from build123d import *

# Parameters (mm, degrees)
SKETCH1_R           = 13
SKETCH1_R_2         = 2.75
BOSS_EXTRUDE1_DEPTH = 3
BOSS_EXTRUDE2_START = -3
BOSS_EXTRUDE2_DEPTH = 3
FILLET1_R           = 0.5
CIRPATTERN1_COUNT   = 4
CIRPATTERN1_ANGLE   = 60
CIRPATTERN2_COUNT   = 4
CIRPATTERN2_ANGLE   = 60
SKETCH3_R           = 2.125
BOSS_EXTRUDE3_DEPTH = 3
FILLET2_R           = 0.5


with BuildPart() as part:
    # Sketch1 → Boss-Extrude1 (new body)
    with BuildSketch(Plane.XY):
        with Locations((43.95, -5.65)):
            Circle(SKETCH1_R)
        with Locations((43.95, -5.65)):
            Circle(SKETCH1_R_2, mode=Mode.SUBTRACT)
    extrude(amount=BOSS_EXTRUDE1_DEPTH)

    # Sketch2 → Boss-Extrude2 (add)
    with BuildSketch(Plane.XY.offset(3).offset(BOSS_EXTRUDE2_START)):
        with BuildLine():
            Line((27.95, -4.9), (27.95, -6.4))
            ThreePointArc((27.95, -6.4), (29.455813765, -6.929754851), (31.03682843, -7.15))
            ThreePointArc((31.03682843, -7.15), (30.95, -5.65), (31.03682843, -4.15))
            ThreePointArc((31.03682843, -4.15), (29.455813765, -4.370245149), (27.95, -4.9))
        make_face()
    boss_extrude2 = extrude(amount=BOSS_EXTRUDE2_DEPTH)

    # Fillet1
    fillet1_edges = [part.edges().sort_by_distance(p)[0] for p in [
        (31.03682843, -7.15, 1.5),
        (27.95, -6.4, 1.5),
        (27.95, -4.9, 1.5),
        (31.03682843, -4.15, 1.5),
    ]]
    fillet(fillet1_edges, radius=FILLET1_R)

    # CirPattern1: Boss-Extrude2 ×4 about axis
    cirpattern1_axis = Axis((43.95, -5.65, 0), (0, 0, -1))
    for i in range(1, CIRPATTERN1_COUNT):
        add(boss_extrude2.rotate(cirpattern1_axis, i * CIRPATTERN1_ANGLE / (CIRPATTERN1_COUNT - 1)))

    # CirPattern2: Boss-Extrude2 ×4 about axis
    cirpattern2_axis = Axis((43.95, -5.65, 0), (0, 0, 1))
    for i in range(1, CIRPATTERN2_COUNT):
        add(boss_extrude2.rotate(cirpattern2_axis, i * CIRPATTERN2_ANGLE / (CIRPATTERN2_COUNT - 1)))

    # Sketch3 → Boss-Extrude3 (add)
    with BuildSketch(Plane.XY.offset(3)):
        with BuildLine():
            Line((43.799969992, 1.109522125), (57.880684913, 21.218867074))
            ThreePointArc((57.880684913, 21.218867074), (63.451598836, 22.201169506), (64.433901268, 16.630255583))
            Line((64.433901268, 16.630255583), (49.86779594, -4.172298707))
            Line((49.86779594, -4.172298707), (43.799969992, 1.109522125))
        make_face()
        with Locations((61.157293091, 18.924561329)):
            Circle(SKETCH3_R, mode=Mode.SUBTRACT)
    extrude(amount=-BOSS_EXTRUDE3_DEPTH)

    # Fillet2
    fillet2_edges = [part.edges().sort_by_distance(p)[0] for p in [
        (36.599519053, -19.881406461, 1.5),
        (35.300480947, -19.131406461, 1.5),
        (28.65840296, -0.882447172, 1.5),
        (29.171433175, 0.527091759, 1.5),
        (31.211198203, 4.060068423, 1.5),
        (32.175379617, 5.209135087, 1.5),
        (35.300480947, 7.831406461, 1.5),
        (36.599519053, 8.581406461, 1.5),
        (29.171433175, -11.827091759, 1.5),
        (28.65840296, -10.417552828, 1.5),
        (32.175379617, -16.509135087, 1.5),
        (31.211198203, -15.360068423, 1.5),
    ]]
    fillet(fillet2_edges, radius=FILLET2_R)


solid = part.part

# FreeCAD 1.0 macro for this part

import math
import FreeCAD as App
import Part
import Sketcher
from FreeCAD import Vector
Q = App.Units.Quantity


def edges_at(feature, points):
    """Names of the edges that pass closest to the given points."""
    edges = feature.Shape.Edges
    near = lambda p: min(range(len(edges)), key=lambda i: edges[i].distToShape(Part.Vertex(*p))[0])
    return sorted({f"Edge{near(p) + 1}" for p in points})

doc = App.newDocument("Part")
body = doc.addObject("PartDesign::Body", "Body")

# Sketch on XY plane
sketch1 = body.newObject("Sketcher::SketchObject", "Sketch")
sketch1.AttachmentSupport = (doc.getObject("XY_Plane"), [""])
sketch1.MapMode = "FlatFace"
sketch1.addGeometry(Part.Circle(Vector(44, -5.7, 0), Vector(0, 0, 1), 13), False)
sketch1.addGeometry(Part.Circle(Vector(44, -5.7, 0), Vector(0, 0, 1), 2.8), False)
sketch1.addConstraint(Sketcher.Constraint("Coincident", 1, 3, 0, 3))
sketch1.addConstraint(Sketcher.Constraint("Diameter", 0, Q("26 mm")))
sketch1.addConstraint(Sketcher.Constraint("Diameter", 1, Q("5.5 mm")))
sketch1.addConstraint(Sketcher.Constraint("DistanceX", -1, 1, 0, 3, Q("43.95 mm")))
sketch1.addConstraint(Sketcher.Constraint("DistanceY", 0, 3, -1, 1, Q("5.65 mm")))
pad1 = body.newObject("PartDesign::Pad", "Pad")
pad1.Profile = sketch1
pad1.Length = 3

# Sketch on XY plane
sketch2 = body.newObject("Sketcher::SketchObject", "Sketch001")
sketch2.AttachmentSupport = (doc.getObject("XY_Plane"), [""])
sketch2.MapMode = "FlatFace"
sketch2.addGeometry(Part.LineSegment(Vector(27.9, -4.9, 0), Vector(27.9, -6.4, 0)), False)
sketch2.addGeometry(Part.ArcOfCircle(Part.Circle(Vector(31.3, 0.8, 0), Vector(0, 0, 1), 8), math.radians(-115), math.radians(-92)), False)
sketch2.addGeometry(Part.ArcOfCircle(Part.Circle(Vector(43.9, -5.7, 0), Vector(0, 0, 1), 13), math.radians(173.37), math.radians(186.63)), False)
sketch2.addGeometry(Part.ArcOfCircle(Part.Circle(Vector(31.3, -12.1, 0), Vector(0, 0, 1), 8), math.radians(92), math.radians(115)), False)
sketch2.addConstraint(Sketcher.Constraint("Coincident", 0, 2, 1, 1))
sketch2.addConstraint(Sketcher.Constraint("Coincident", 1, 2, 2, 2))
sketch2.addConstraint(Sketcher.Constraint("Coincident", 2, 1, 3, 1))
sketch2.addConstraint(Sketcher.Constraint("Coincident", 3, 2, 0, 1))
sketch2.addConstraint(Sketcher.Constraint("Vertical", 0))
sketch2.addConstraint(Sketcher.Constraint("Equal", 1, 3))
sketch2.addConstraint(Sketcher.Constraint("Vertical", 1, 3, 3, 3))
sketch2.addConstraint(Sketcher.Constraint("Vertical", 1, 2, 2, 1))
sketch2.addConstraint(Sketcher.Constraint("Radius", 1, Q("8 mm")))
sketch2.addConstraint(Sketcher.Constraint("Radius", 2, Q("13 mm")))
sketch2.addConstraint(Sketcher.Constraint("DistanceY", 0, 2, 0, 1, Q("1.5 mm")))
sketch2.addConstraint(Sketcher.Constraint("DistanceX", 0, 2, 2, 3, Q("16 mm")))
sketch2.addConstraint(Sketcher.Constraint("DistanceY", 1, 2, 2, 1, Q("3 mm")))
sketch2.addConstraint(Sketcher.Constraint("DistanceY", 0, 2, -1, 1, Q("6.4 mm")))
sketch2.addConstraint(Sketcher.Constraint("DistanceX", -1, 1, 2, 3, Q("43.95 mm")))
pad2 = body.newObject("PartDesign::Pad", "Pad001")
pad2.Profile = sketch2
pad2.Length = 3
doc.recompute()

fillet = body.newObject("PartDesign::Fillet", "Fillet")
fillet.Base = (pad2, edges_at(pad2, [
    (31.037, -7.15, 1.5),
    (27.95, -6.4, 1.5),
    (27.95, -4.9, 1.5),
    (31.037, -4.15, 1.5),
]))
fillet.Radius = 0.5
doc.recompute()

datumline = body.newObject("PartDesign::Line", "DatumLine")
datumline.Placement = App.Placement(Vector(43.95, -5.65, 0), App.Rotation(Vector(0, 0, 1), Vector(0, 0, -1)))
polarpattern = body.newObject("PartDesign::PolarPattern", "PolarPattern")
polarpattern.Originals = [pad2]
polarpattern.Axis = (datumline, [""])
polarpattern.Angle = 60
polarpattern.Occurrences = 4
body.Tip = polarpattern
doc.recompute()

datumline2 = body.newObject("PartDesign::Line", "DatumLine001")
datumline2.Placement = App.Placement(Vector(43.95, -5.65, 0), App.Rotation(Vector(0, 0, 1), Vector(0, 0, 1)))
polarpattern2 = body.newObject("PartDesign::PolarPattern", "PolarPattern001")
polarpattern2.Originals = [pad2]
polarpattern2.Axis = (datumline2, [""])
polarpattern2.Angle = 60
polarpattern2.Occurrences = 4
body.Tip = polarpattern2

# Sketch on XY plane
sketch3 = body.newObject("Sketcher::SketchObject", "Sketch002")
sketch3.AttachmentSupport = (doc.getObject("XY_Plane"), [""])
sketch3.MapMode = "FlatFace"
sketch3.AttachmentOffset = App.Placement(Vector(0, 0, 3), App.Rotation())
sketch3.addGeometry(Part.LineSegment(Vector(57.9, 21.2, 0), Vector(43.8, 1.1, 0)), False)
sketch3.addGeometry(Part.LineSegment(Vector(43.8, 1.1, 0), Vector(49.9, -4.2, 0)), False)
sketch3.addGeometry(Part.LineSegment(Vector(49.9, -4.2, 0), Vector(64.4, 16.6, 0)), False)
sketch3.addGeometry(Part.ArcOfCircle(Part.Circle(Vector(61.2, 18.9, 0), Vector(0, 0, 1), 4), math.radians(-35), math.radians(145)), False)
sketch3.addGeometry(Part.Circle(Vector(61.2, 18.9, 0), Vector(0, 0, 1), 2.1), False)
sketch3.addConstraint(Sketcher.Constraint("Coincident", 0, 2, 1, 1))
sketch3.addConstraint(Sketcher.Constraint("Coincident", 1, 2, 2, 1))
sketch3.addConstraint(Sketcher.Constraint("Tangent", 2, 2, 3, 1))
sketch3.addConstraint(Sketcher.Constraint("Tangent", 3, 2, 0, 1))
sketch3.addConstraint(Sketcher.Constraint("Coincident", 4, 3, 3, 3))
sketch3.addConstraint(Sketcher.Constraint("Parallel", 0, 2))
sketch3.addConstraint(Sketcher.Constraint("Radius", 3, Q("4 mm")))
sketch3.addConstraint(Sketcher.Constraint("Diameter", 4, Q("4.25 mm")))
sketch3.addConstraint(Sketcher.Constraint("Angle", 0, Q("-125 deg")))
sketch3.addConstraint(Sketcher.Constraint("DistanceY", 1, 2, -1, 1, Q("4.172299 mm")))
sketch3.addConstraint(Sketcher.Constraint("DistanceX", -1, 1, 2, 2, Q("64.433901 mm")))
sketch3.addConstraint(Sketcher.Constraint("Distance", 2, Q("25.39523 mm")))
sketch3.addConstraint(Sketcher.Constraint("DistanceX", -1, 1, 0, 2, Q("43.79997 mm")))
pad3 = body.newObject("PartDesign::Pad", "Pad002")
pad3.Profile = sketch3
pad3.Length = 3
pad3.Reversed = True
doc.recompute()

fillet2 = body.newObject("PartDesign::Fillet", "Fillet001")
fillet2.Base = (pad3, edges_at(pad3, [
    (36.6, -19.881, 1.5),
    (35.3, -19.131, 1.5),
    (28.658, -0.882, 1.5),
    (29.171, 0.527, 1.5),
    (31.211, 4.06, 1.5),
    (32.175, 5.209, 1.5),
    (35.3, 7.831, 1.5),
    (36.6, 8.581, 1.5),
    (29.171, -11.827, 1.5),
    (28.658, -10.418, 1.5),
    (32.175, -16.509, 1.5),
    (31.211, -15.36, 1.5),
]))
fillet2.Radius = 0.5

doc.recompute()
